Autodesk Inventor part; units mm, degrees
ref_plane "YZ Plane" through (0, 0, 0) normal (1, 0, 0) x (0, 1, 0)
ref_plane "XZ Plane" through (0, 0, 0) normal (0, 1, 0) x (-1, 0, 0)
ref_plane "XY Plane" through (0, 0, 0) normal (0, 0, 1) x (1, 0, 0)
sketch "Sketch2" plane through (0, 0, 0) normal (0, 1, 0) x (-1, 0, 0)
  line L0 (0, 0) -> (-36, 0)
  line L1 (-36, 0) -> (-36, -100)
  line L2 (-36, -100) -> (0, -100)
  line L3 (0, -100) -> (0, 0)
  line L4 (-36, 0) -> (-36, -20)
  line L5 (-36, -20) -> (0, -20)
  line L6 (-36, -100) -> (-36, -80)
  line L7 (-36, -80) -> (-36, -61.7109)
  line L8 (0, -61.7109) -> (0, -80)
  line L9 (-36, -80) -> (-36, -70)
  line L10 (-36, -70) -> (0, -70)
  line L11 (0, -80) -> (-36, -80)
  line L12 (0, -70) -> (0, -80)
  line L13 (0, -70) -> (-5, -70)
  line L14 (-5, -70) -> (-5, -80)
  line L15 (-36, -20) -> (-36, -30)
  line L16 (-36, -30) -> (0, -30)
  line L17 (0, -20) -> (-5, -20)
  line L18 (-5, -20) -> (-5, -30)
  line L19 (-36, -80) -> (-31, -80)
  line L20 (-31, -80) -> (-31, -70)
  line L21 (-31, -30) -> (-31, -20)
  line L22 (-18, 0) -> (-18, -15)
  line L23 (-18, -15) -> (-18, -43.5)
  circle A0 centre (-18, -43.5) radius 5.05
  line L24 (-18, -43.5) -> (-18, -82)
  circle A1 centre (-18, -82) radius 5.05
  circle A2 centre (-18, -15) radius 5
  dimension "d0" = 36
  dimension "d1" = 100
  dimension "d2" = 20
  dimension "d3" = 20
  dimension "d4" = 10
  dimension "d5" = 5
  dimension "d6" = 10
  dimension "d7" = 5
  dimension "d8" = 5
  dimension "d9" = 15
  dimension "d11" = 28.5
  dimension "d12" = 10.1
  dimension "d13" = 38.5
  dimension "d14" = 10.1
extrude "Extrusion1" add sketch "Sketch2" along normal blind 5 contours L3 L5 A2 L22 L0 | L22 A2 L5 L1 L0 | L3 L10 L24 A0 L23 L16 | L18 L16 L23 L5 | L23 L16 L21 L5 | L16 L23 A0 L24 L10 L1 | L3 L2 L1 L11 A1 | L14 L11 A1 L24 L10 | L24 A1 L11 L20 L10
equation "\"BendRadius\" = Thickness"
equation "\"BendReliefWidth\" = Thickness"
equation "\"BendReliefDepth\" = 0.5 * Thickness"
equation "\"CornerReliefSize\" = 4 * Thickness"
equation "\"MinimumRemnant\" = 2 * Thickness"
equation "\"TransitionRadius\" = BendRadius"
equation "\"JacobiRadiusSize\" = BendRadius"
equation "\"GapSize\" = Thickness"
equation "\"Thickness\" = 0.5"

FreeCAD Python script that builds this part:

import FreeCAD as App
import Part
import Sketcher
from FreeCAD import Vector
Q = App.Units.Quantity


def add_polygon(sketch, points):
    """Adds a closed chain of lines whose ends are joined by coincident constraints."""
    first, n = sketch.GeometryCount, len(points)
    for a, b in zip(points, points[1:] + points[:1]):
        sketch.addGeometry(Part.LineSegment(App.Vector(*a, 0), App.Vector(*b, 0)), False)
    for i in range(n):
        sketch.addConstraint(Sketcher.Constraint("Coincident", first + i, 2, first + (i + 1) % n, 1))

doc = App.newDocument("Part")
body = doc.addObject("PartDesign::Body", "Body")

# Sketch on XZ plane
sketch1 = body.newObject("Sketcher::SketchObject", "Sketch")
sketch1.AttachmentSupport = (doc.getObject("XZ_Plane"), [""])
sketch1.MapMode = "FlatFace"
add_polygon(sketch1, [(0, -20), (0, 0), (36, 0), (36, -20), (31, -20), (31, -30), (36, -30), (36, -70), (31, -70), (31, -80), (36, -80), (36, -100), (0, -100), (0, -80), (5, -80), (5, -70), (0, -70), (0, -30), (5, -30), (5, -20)])  # lines 0-19
sketch1.addGeometry(Part.Circle(Vector(18, -15, 0), Vector(0, 0, 1), 5), False)  # 20
sketch1.addGeometry(Part.Circle(Vector(18, -44, 0), Vector(0, 0, 1), 5), False)  # 21
sketch1.addGeometry(Part.Circle(Vector(18, -82, 0), Vector(0, 0, 1), 5), False)  # 22
sketch1.addConstraint(Sketcher.Constraint("Vertical", 0))
sketch1.addConstraint(Sketcher.Constraint("Horizontal", 1))
sketch1.addConstraint(Sketcher.Constraint("Vertical", 2))
sketch1.addConstraint(Sketcher.Constraint("Horizontal", 3))
sketch1.addConstraint(Sketcher.Constraint("Vertical", 4))
sketch1.addConstraint(Sketcher.Constraint("Horizontal", 5))
sketch1.addConstraint(Sketcher.Constraint("Vertical", 6))
sketch1.addConstraint(Sketcher.Constraint("Horizontal", 7))
sketch1.addConstraint(Sketcher.Constraint("Vertical", 8))
sketch1.addConstraint(Sketcher.Constraint("Horizontal", 9))
sketch1.addConstraint(Sketcher.Constraint("Vertical", 10))
sketch1.addConstraint(Sketcher.Constraint("Horizontal", 11))
sketch1.addConstraint(Sketcher.Constraint("Vertical", 12))
sketch1.addConstraint(Sketcher.Constraint("Horizontal", 13))
sketch1.addConstraint(Sketcher.Constraint("Vertical", 14))
sketch1.addConstraint(Sketcher.Constraint("Horizontal", 15))
sketch1.addConstraint(Sketcher.Constraint("Vertical", 16))
sketch1.addConstraint(Sketcher.Constraint("Horizontal", 17))
sketch1.addConstraint(Sketcher.Constraint("Vertical", 18))
sketch1.addConstraint(Sketcher.Constraint("Horizontal", 19))
sketch1.addConstraint(Sketcher.Constraint("Coincident", 0, 2, -1, 1))
sketch1.addConstraint(Sketcher.Constraint("Equal", 21, 22))
sketch1.addConstraint(Sketcher.Constraint("PointOnObject", 11, 2, -2))
sketch1.addConstraint(Sketcher.Constraint("PointOnObject", 15, 2, -2))
sketch1.addConstraint(Sketcher.Constraint("Horizontal", 9, 2, 12, 2))
sketch1.addConstraint(Sketcher.Constraint("Horizontal", 7, 2, 14, 2))
sketch1.addConstraint(Sketcher.Constraint("Horizontal", 5, 2, 16, 2))
sketch1.addConstraint(Sketcher.Constraint("Horizontal", 3, 2, 18, 2))
sketch1.addConstraint(Sketcher.Constraint("Vertical", 20, 3, 21, 3))
sketch1.addConstraint(Sketcher.Constraint("Vertical", 21, 3, 22, 3))
sketch1.addConstraint(Sketcher.Constraint("Vertical", 2, 2, 5, 2))
sketch1.addConstraint(Sketcher.Constraint("Vertical", 4, 2, 7, 2))
sketch1.addConstraint(Sketcher.Constraint("Vertical", 6, 2, 9, 2))
sketch1.addConstraint(Sketcher.Constraint("Vertical", 14, 2, 17, 2))
sketch1.addConstraint(Sketcher.Constraint("Equal", 9, 13))
sketch1.addConstraint(Sketcher.Constraint("Equal", 4, 8))
sketch1.addConstraint(Sketcher.Constraint("Equal", 2, 10))
sketch1.addConstraint(Sketcher.Constraint("Diameter", 20, Q("10 mm")))
sketch1.addConstraint(Sketcher.Constraint("Diameter", 21, Q("10.1 mm")))
sketch1.addConstraint(Sketcher.Constraint("DistanceX", 1, 1, 1, 2, Q("36 mm")))
sketch1.addConstraint(Sketcher.Constraint("DistanceX", 3, 2, 3, 1, Q("5 mm")))
sketch1.addConstraint(Sketcher.Constraint("DistanceY", 0, 1, 0, 2, Q("20 mm")))
sketch1.addConstraint(Sketcher.Constraint("DistanceY", 4, 2, 4, 1, Q("10 mm")))
sketch1.addConstraint(Sketcher.Constraint("DistanceY", 20, 3, -1, 1, Q("15 mm")))
sketch1.addConstraint(Sketcher.Constraint("DistanceY", 10, 2, -1, 1, Q("100 mm")))
sketch1.addConstraint(Sketcher.Constraint("DistanceY", 21, 3, 20, 3, Q("28.5 mm")))
sketch1.addConstraint(Sketcher.Constraint("DistanceY", 22, 3, 21, 3, Q("38.5 mm")))
sketch1.addConstraint(Sketcher.Constraint("DistanceX", -1, 1, 20, 3, Q("18 mm")))
pad1 = body.newObject("PartDesign::Pad", "Pad")
pad1.Profile = sketch1
pad1.Length = 5
pad1.Reversed = True

doc.recompute()
